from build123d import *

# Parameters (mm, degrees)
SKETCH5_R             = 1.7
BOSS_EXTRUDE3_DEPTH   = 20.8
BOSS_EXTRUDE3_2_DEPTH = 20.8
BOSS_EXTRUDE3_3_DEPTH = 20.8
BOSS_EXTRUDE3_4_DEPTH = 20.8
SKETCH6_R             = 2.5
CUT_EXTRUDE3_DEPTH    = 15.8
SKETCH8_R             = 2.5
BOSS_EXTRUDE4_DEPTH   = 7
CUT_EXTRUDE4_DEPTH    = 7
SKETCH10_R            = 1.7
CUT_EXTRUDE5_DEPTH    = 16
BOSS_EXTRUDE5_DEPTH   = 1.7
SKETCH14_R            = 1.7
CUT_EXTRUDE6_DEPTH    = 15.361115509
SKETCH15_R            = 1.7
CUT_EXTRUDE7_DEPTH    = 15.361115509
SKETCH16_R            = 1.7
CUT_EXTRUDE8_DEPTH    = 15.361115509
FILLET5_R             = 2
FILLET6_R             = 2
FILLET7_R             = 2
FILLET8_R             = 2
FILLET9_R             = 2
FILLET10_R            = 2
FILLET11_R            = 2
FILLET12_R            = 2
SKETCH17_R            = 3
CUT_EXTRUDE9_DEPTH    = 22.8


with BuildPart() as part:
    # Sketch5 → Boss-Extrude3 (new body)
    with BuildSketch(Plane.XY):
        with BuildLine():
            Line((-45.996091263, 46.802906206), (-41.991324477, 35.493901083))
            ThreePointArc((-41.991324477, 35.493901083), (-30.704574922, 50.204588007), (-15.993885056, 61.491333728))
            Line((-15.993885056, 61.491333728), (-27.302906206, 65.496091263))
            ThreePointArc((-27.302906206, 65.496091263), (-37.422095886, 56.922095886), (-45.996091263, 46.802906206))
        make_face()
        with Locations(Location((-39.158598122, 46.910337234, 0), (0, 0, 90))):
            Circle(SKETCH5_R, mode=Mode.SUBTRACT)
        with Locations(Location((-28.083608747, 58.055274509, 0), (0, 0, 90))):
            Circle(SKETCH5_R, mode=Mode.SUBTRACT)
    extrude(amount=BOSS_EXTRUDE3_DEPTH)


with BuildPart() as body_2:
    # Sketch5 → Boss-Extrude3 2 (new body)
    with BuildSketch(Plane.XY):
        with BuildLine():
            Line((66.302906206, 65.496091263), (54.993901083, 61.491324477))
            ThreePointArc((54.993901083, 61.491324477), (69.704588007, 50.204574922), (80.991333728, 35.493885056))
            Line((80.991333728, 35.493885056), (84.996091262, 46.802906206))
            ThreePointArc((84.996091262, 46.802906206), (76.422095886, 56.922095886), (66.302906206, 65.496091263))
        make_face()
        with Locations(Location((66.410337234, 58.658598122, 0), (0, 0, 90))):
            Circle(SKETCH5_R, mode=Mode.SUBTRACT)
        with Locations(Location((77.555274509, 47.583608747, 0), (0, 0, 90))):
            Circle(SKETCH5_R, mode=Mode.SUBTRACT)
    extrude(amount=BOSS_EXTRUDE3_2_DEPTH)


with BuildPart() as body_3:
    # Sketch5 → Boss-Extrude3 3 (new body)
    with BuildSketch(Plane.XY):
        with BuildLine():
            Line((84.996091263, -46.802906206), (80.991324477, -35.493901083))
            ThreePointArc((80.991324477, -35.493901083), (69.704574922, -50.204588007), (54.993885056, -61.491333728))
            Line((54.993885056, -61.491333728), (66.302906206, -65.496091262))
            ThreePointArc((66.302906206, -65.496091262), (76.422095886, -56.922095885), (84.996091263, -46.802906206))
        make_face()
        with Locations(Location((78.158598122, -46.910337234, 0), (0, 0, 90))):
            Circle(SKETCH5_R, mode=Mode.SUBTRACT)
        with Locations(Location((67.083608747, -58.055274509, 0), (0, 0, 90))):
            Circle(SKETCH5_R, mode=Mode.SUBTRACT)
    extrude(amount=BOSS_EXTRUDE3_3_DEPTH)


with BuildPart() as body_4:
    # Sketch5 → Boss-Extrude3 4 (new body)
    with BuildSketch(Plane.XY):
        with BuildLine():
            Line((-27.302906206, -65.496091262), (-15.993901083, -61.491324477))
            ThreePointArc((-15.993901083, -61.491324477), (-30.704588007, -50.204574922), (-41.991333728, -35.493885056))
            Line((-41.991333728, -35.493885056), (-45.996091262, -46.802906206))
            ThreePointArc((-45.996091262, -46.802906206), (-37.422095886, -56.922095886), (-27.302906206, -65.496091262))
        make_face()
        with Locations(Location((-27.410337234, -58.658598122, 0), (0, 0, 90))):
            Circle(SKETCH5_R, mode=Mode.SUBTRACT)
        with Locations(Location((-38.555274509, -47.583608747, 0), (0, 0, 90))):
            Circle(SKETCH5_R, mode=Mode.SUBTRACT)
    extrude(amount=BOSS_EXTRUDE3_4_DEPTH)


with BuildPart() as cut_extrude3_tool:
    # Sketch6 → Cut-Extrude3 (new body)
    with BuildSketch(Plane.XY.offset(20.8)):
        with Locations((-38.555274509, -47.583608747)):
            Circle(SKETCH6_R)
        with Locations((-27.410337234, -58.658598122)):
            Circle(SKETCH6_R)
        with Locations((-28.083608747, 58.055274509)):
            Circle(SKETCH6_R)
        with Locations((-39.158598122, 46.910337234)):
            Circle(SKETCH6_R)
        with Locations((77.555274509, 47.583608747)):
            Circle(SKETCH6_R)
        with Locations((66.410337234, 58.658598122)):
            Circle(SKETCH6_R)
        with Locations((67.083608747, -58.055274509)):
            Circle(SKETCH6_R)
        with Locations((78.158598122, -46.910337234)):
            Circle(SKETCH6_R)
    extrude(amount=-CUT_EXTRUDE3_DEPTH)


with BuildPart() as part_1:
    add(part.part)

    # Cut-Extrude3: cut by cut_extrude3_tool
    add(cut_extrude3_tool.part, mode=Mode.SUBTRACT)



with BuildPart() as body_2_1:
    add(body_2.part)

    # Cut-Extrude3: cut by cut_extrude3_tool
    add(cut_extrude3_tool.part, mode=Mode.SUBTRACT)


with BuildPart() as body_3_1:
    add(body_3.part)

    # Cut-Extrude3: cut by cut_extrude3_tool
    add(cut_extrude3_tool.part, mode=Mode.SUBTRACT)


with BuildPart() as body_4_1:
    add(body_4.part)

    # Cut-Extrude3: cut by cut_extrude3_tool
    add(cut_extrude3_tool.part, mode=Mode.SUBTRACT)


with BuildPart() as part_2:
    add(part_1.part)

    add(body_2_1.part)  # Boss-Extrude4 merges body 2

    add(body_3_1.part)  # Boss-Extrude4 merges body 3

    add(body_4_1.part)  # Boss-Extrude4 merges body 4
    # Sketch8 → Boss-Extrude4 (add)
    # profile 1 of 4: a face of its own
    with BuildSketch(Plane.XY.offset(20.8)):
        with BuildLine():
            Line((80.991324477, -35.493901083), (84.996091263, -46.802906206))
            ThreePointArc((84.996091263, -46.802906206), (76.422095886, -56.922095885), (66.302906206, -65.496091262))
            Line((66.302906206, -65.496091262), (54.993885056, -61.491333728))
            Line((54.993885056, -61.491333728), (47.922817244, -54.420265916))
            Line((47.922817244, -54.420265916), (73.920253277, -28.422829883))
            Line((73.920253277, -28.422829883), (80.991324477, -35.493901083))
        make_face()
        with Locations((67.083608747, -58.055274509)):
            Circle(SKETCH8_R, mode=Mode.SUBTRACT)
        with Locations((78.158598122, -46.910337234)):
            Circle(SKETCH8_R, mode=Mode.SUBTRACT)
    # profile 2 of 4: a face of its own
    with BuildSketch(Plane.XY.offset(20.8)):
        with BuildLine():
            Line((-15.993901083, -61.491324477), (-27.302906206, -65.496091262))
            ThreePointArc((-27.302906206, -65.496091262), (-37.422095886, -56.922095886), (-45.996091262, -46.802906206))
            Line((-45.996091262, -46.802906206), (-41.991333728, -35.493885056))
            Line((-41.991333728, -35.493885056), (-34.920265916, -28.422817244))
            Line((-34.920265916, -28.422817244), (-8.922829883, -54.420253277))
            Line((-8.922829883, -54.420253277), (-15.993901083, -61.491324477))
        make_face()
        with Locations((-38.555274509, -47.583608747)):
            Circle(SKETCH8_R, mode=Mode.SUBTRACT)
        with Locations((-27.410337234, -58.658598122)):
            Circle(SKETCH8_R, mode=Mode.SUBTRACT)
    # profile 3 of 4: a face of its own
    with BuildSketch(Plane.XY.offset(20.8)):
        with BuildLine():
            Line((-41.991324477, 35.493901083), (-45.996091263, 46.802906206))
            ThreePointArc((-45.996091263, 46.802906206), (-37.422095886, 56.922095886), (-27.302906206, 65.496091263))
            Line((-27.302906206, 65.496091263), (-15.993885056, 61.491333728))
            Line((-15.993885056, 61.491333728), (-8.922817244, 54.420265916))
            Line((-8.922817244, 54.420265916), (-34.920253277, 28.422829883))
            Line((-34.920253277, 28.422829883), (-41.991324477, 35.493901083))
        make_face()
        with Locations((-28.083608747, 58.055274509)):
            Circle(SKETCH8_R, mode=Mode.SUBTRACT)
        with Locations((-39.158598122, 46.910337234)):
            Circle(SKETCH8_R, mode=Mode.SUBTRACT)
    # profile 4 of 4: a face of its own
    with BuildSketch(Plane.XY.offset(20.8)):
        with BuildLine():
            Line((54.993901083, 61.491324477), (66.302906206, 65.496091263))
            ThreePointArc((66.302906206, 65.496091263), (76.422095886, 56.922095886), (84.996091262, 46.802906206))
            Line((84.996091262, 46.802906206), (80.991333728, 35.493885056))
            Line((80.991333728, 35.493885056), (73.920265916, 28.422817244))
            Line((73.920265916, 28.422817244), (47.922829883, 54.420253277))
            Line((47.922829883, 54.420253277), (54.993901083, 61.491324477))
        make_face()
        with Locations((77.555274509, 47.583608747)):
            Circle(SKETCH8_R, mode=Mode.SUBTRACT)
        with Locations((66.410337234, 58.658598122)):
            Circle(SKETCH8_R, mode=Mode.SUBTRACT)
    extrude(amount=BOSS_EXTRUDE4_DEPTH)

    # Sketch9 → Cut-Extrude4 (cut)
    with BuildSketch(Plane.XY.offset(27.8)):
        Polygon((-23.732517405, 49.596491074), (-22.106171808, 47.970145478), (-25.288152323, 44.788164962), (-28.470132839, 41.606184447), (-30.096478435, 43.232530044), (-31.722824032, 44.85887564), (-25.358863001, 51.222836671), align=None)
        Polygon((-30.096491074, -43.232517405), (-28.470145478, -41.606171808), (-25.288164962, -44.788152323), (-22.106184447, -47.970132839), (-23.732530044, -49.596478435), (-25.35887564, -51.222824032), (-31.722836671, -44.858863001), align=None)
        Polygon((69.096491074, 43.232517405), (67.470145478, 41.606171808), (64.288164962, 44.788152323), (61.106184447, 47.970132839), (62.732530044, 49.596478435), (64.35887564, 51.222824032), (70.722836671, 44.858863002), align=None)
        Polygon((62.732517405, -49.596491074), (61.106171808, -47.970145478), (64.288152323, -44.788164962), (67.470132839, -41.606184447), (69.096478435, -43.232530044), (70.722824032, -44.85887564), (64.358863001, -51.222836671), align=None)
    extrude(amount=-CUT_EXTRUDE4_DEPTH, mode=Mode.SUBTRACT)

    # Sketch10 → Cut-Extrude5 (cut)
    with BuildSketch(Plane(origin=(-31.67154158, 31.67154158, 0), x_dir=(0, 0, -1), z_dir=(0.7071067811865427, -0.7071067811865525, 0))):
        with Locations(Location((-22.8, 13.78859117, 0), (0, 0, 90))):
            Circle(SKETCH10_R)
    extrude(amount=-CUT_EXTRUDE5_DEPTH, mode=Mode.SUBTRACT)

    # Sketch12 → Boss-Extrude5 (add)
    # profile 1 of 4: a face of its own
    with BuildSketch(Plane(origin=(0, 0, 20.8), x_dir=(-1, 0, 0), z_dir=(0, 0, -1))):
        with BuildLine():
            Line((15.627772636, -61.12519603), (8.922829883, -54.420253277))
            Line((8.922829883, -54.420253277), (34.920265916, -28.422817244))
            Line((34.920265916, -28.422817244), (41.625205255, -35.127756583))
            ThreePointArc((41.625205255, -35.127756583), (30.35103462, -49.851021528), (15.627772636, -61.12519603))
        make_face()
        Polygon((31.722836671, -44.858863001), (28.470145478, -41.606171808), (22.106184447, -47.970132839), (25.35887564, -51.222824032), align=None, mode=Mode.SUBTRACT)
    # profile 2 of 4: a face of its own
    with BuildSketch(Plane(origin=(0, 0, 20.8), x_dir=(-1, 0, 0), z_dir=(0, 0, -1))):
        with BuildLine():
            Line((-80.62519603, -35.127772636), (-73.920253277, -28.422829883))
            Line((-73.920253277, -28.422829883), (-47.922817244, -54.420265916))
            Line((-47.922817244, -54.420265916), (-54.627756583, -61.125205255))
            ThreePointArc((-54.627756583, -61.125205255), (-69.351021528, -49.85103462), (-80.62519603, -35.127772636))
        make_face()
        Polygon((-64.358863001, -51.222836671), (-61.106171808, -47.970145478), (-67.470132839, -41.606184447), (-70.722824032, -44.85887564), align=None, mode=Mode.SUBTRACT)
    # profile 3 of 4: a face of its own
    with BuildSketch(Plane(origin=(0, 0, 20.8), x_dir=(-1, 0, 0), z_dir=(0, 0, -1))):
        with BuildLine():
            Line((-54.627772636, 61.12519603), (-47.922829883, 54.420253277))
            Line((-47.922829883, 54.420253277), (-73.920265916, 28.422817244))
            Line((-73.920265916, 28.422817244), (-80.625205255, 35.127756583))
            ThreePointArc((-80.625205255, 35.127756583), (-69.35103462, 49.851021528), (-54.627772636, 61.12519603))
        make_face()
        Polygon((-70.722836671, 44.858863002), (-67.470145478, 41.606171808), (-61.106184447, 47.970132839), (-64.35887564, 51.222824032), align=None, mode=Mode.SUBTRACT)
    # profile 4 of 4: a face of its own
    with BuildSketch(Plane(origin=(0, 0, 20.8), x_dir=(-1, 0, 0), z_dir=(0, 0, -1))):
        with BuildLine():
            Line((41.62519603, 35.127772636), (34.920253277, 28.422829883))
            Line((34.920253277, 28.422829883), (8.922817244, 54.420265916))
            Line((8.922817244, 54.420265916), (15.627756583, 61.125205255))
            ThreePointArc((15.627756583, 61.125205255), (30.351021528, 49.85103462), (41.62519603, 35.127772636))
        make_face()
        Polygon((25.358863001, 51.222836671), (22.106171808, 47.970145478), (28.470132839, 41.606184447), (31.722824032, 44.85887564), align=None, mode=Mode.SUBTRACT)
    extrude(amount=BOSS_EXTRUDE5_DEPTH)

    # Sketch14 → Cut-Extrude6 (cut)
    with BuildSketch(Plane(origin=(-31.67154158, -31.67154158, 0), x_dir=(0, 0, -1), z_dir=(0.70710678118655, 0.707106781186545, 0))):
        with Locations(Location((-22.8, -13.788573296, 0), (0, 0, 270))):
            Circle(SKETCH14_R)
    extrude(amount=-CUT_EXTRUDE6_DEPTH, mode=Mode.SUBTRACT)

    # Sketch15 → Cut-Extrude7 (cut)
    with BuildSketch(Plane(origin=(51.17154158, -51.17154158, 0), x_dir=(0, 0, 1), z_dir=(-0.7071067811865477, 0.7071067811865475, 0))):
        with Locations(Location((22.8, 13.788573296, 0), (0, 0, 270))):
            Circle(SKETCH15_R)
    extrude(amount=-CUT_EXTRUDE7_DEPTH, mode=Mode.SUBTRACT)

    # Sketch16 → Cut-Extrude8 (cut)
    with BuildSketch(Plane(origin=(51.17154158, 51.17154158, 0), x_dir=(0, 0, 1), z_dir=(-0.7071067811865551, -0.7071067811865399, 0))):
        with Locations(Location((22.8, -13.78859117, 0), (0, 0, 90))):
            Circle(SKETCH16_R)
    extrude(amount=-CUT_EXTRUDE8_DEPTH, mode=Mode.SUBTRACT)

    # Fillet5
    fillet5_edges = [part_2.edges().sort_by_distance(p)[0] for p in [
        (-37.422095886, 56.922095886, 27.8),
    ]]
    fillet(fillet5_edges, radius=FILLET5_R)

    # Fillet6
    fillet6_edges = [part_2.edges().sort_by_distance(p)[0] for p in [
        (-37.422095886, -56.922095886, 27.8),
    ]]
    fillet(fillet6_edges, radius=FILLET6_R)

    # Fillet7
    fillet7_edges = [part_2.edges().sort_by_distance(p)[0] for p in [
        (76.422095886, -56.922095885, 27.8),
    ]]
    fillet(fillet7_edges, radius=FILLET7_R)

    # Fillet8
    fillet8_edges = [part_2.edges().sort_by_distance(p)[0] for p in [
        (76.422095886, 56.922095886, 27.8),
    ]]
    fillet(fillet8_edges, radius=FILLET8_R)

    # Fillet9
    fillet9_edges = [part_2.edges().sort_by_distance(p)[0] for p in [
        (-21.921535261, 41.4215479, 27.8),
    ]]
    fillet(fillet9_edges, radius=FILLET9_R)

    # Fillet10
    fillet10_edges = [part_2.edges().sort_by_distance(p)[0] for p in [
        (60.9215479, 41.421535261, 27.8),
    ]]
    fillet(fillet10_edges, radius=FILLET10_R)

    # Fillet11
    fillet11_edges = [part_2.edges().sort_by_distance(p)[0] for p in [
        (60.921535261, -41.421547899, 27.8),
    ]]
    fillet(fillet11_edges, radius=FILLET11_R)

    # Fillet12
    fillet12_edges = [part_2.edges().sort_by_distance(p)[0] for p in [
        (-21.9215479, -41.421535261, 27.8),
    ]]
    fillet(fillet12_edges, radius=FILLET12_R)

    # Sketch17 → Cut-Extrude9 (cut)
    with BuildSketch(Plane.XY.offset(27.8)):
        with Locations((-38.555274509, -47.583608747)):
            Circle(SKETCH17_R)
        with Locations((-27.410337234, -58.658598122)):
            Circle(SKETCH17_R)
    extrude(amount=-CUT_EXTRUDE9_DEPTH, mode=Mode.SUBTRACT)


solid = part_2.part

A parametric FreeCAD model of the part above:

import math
import FreeCAD as App
import Part
import Sketcher
Q = App.Units.Quantity


def edges_at(feature, points):
    """Names of the edges that pass closest to the given points."""
    edges = feature.Shape.Edges
    near = lambda p: min(range(len(edges)), key=lambda i: edges[i].distToShape(Part.Vertex(*p))[0])
    return sorted({f"Edge{near(p) + 1}" for p in points})


def add_polygon(sketch, points):
    """Adds a closed chain of lines whose ends are joined by coincident constraints."""
    first, n = sketch.GeometryCount, len(points)
    for a, b in zip(points, points[1:] + points[:1]):
        sketch.addGeometry(Part.LineSegment(App.Vector(*a, 0), App.Vector(*b, 0)), False)
    for i in range(n):
        sketch.addConstraint(Sketcher.Constraint("Coincident", first + i, 2, first + (i + 1) % n, 1))

doc = App.newDocument("Part")
body = doc.addObject("PartDesign::Body", "Body")

# Sketch on XY plane
sketch1 = body.newObject("Sketcher::SketchObject", "Sketch")
sketch1.AttachmentSupport = (doc.getObject("XY_Plane"), [""])
sketch1.MapMode = "FlatFace"
sketch1.addGeometry([
    Part.LineSegment(App.Vector(-45.996091, 46.802906, 0), App.Vector(-41.991324, 35.493901, 0)),  # 0
    Part.ArcOfCircle(Part.Circle(App.Vector(19.5, 0, 0), App.Vector(0, 0, 1), 71), math.radians(119.994302), math.radians(150.005683)),  # 1
    Part.LineSegment(App.Vector(-15.993885, 61.491334, 0), App.Vector(-27.302906, 65.496091, 0)),  # 2
    Part.ArcOfCircle(Part.Circle(App.Vector(19.5, 0, 0), App.Vector(0, 0, 1), 80.5), math.radians(125.549252), math.radians(144.450748)),  # 3
    Part.Circle(App.Vector(-39.158598, 46.910337, 0), App.Vector(0, 0, 1), 1.7),  # 4
    Part.Circle(App.Vector(-28.083609, 58.055275, 0), App.Vector(0, 0, 1), 1.7),  # 5
], False)
sketch1.addConstraint([
    Sketcher.Constraint("Coincident", 0, 2, 1, 2),
    Sketcher.Constraint("Coincident", 1, 1, 2, 1),
    Sketcher.Constraint("Coincident", 2, 2, 3, 1),
    Sketcher.Constraint("Coincident", 3, 2, 0, 1),
    Sketcher.Constraint("Coincident", 3, 3, 1, 3),
    Sketcher.Constraint("Equal", 4, 5),
    Sketcher.Constraint("PointOnObject", 1, 3, -1),
    Sketcher.Constraint("Radius", 1, Q("71 mm")),
    Sketcher.Constraint("Diameter", 4, Q("3.4 mm")),
    Sketcher.Constraint("Radius", 3, Q("80.5 mm")),
    Sketcher.Constraint("DistanceX", -1, 1, 1, 3, Q("19.5 mm")),
    Sketcher.Constraint("DistanceX", 4, 3, -1, 1, Q("39.158598 mm")),
    Sketcher.Constraint("DistanceY", -1, 1, 0, 2, Q("35.493901 mm")),
    Sketcher.Constraint("Distance", 2, Q("11.997168 mm")),
    Sketcher.Constraint("DistanceX", 5, 3, -1, 1, Q("28.083609 mm")),
    Sketcher.Constraint("DistanceY", -1, 1, 2, 2, Q("65.496091 mm")),
    Sketcher.Constraint("DistanceX", 3, 2, -1, 1, Q("45.996091 mm")),
    Sketcher.Constraint("DistanceY", 5, 3, 1, 1, Q("3.436059 mm")),
    Sketcher.Constraint("DistanceY", 3, 2, 4, 3, Q("0.107431 mm")),
])
pad1 = body.newObject("PartDesign::Pad", "Pad")
pad1.Profile = sketch1
pad1.Length = 20.8
body2 = doc.addObject("PartDesign::Body", "Body001")

# Sketch on XY plane
sketch2 = body2.newObject("Sketcher::SketchObject", "Sketch001")
sketch2.AttachmentSupport = (doc.getObject("XY_Plane001"), [""])
sketch2.MapMode = "FlatFace"
sketch2.addGeometry([
    Part.LineSegment(App.Vector(66.302906, 65.496091, 0), App.Vector(54.993901, 61.491324, 0)),  # 0
    Part.ArcOfCircle(Part.Circle(App.Vector(19.5, 0, 0), App.Vector(0, 0, 1), 71), math.radians(29.994302), math.radians(60.005683)),  # 1
    Part.LineSegment(App.Vector(80.991334, 35.493885, 0), App.Vector(84.996091, 46.802906, 0)),  # 2
    Part.ArcOfCircle(Part.Circle(App.Vector(19.5, 0, 0), App.Vector(0, 0, 1), 80.5), math.radians(35.549252), math.radians(54.450748)),  # 3
    Part.Circle(App.Vector(77.555275, 47.583609, 0), App.Vector(0, 0, 1), 1.7),  # 4
    Part.Circle(App.Vector(66.410337, 58.658598, 0), App.Vector(0, 0, 1), 1.7),  # 5
], False)
sketch2.addConstraint([
    Sketcher.Constraint("Coincident", 0, 2, 1, 2),
    Sketcher.Constraint("Coincident", 1, 1, 2, 1),
    Sketcher.Constraint("Coincident", 2, 2, 3, 1),
    Sketcher.Constraint("Coincident", 3, 2, 0, 1),
    Sketcher.Constraint("Coincident", 3, 3, 1, 3),
    Sketcher.Constraint("Equal", 4, 5),
    Sketcher.Constraint("PointOnObject", 1, 3, -1),
    Sketcher.Constraint("Radius", 1, Q("71 mm")),
    Sketcher.Constraint("Diameter", 4, Q("3.4 mm")),
    Sketcher.Constraint("Radius", 3, Q("80.5 mm")),
    Sketcher.Constraint("DistanceX", -1, 1, 1, 3, Q("19.5 mm")),
    Sketcher.Constraint("DistanceY", -1, 1, 5, 3, Q("58.658598 mm")),
    Sketcher.Constraint("DistanceX", -1, 1, 0, 2, Q("54.993901 mm")),
    Sketcher.Constraint("Distance", 2, Q("11.997168 mm")),
    Sketcher.Constraint("DistanceY", -1, 1, 4, 3, Q("47.583609 mm")),
    Sketcher.Constraint("DistanceX", -1, 1, 2, 2, Q("84.996091 mm")),
    Sketcher.Constraint("DistanceY", -1, 1, 3, 2, Q("65.496091 mm")),
    Sketcher.Constraint("DistanceX", 4, 3, 1, 1, Q("3.436059 mm")),
    Sketcher.Constraint("DistanceX", 3, 2, 5, 3, Q("0.107431 mm")),
])
pad2 = body2.newObject("PartDesign::Pad", "Pad001")
pad2.Profile = sketch2
pad2.Length = 20.8
body3 = doc.addObject("PartDesign::Body", "Body002")

# Sketch on XY plane
sketch3 = body3.newObject("Sketcher::SketchObject", "Sketch002")
sketch3.AttachmentSupport = (doc.getObject("XY_Plane002"), [""])
sketch3.MapMode = "FlatFace"
sketch3.addGeometry([
    Part.LineSegment(App.Vector(84.996091, -46.802906, 0), App.Vector(80.991324, -35.493901, 0)),  # 0
    Part.ArcOfCircle(Part.Circle(App.Vector(19.5, 0, 0), App.Vector(0, 0, 1), 71), math.radians(-60.005698), math.radians(-29.994317)),  # 1
    Part.LineSegment(App.Vector(54.993885, -61.491334, 0), App.Vector(66.302906, -65.496091, 0)),  # 2
    Part.ArcOfCircle(Part.Circle(App.Vector(19.5, 0, 0), App.Vector(0, 0, 1), 80.5), math.radians(-54.450748), math.radians(-35.549252)),  # 3
    Part.Circle(App.Vector(67.083609, -58.055275, 0), App.Vector(0, 0, 1), 1.7),  # 4
    Part.Circle(App.Vector(78.158598, -46.910337, 0), App.Vector(0, 0, 1), 1.7),  # 5
], False)
sketch3.addConstraint([
    Sketcher.Constraint("Coincident", 0, 2, 1, 2),
    Sketcher.Constraint("Coincident", 1, 1, 2, 1),
    Sketcher.Constraint("Coincident", 2, 2, 3, 1),
    Sketcher.Constraint("Coincident", 3, 2, 0, 1),
    Sketcher.Constraint("Coincident", 3, 3, 1, 3),
    Sketcher.Constraint("Equal", 4, 5),
    Sketcher.Constraint("PointOnObject", 1, 3, -1),
    Sketcher.Constraint("Radius", 1, Q("71 mm")),
    Sketcher.Constraint("Diameter", 4, Q("3.4 mm")),
    Sketcher.Constraint("Radius", 3, Q("80.5 mm")),
    Sketcher.Constraint("DistanceX", -1, 1, 1, 3, Q("19.5 mm")),
    Sketcher.Constraint("DistanceX", -1, 1, 5, 3, Q("78.158598 mm")),
    Sketcher.Constraint("DistanceY", 0, 2, -1, 1, Q("35.493901 mm")),
    Sketcher.Constraint("Distance", 2, Q("11.997168 mm")),
    Sketcher.Constraint("DistanceX", -1, 1, 4, 3, Q("67.083609 mm")),
    Sketcher.Constraint("DistanceY", 2, 2, -1, 1, Q("65.496091 mm")),
    Sketcher.Constraint("DistanceX", -1, 1, 3, 2, Q("84.996091 mm")),
    Sketcher.Constraint("DistanceY", 1, 1, 4, 3, Q("3.436059 mm")),
    Sketcher.Constraint("DistanceY", 5, 3, 3, 2, Q("0.107431 mm")),
])
pad3 = body3.newObject("PartDesign::Pad", "Pad002")
pad3.Profile = sketch3
pad3.Length = 20.8
body4 = doc.addObject("PartDesign::Body", "Body003")

# Sketch on XY plane
sketch4 = body4.newObject("Sketcher::SketchObject", "Sketch003")
sketch4.AttachmentSupport = (doc.getObject("XY_Plane003"), [""])
sketch4.MapMode = "FlatFace"
sketch4.addGeometry([
    Part.LineSegment(App.Vector(-27.302906, -65.496091, 0), App.Vector(-15.993901, -61.491324, 0)),  # 0
    Part.ArcOfCircle(Part.Circle(App.Vector(19.5, 0, 0), App.Vector(0, 0, 1), 71), math.radians(-150.005698), math.radians(-119.994317)),  # 1
    Part.LineSegment(App.Vector(-41.991334, -35.493885, 0), App.Vector(-45.996091, -46.802906, 0)),  # 2
    Part.ArcOfCircle(Part.Circle(App.Vector(19.5, 0, 0), App.Vector(0, 0, 1), 80.5), math.radians(-144.450748), math.radians(-125.549252)),  # 3
    Part.Circle(App.Vector(-27.410337, -58.658598, 0), App.Vector(0, 0, 1), 1.7),  # 4
    Part.Circle(App.Vector(-38.555275, -47.583609, 0), App.Vector(0, 0, 1), 1.7),  # 5
], False)
sketch4.addConstraint([
    Sketcher.Constraint("Coincident", 0, 2, 1, 2),
    Sketcher.Constraint("Coincident", 1, 1, 2, 1),
    Sketcher.Constraint("Coincident", 2, 2, 3, 1),
    Sketcher.Constraint("Coincident", 3, 2, 0, 1),
    Sketcher.Constraint("Coincident", 3, 3, 1, 3),
    Sketcher.Constraint("Equal", 4, 5),
    Sketcher.Constraint("PointOnObject", 1, 3, -1),
    Sketcher.Constraint("Radius", 1, Q("71 mm")),
    Sketcher.Constraint("Diameter", 4, Q("3.4 mm")),
    Sketcher.Constraint("Radius", 3, Q("80.5 mm")),
    Sketcher.Constraint("DistanceX", -1, 1, 1, 3, Q("19.5 mm")),
    Sketcher.Constraint("DistanceY", 4, 3, -1, 1, Q("58.658598 mm")),
    Sketcher.Constraint("DistanceX", 0, 2, -1, 1, Q("15.993901 mm")),
    Sketcher.Constraint("Distance", 2, Q("11.997168 mm")),
    Sketcher.Constraint("DistanceY", 5, 3, -1, 1, Q("47.583609 mm")),
    Sketcher.Constraint("DistanceX", 2, 2, -1, 1, Q("45.996091 mm")),
    Sketcher.Constraint("DistanceY", 3, 2, -1, 1, Q("65.496091 mm")),
    Sketcher.Constraint("DistanceX", 1, 1, 5, 3, Q("3.436059 mm")),
    Sketcher.Constraint("DistanceX", 4, 3, 3, 2, Q("0.107431 mm")),
])
pad4 = body4.newObject("PartDesign::Pad", "Pad003")
pad4.Profile = sketch4
pad4.Length = 20.8
body5 = doc.addObject("PartDesign::Body", "Body004")
body5.AllowCompound = True

# Sketch on XY plane
sketch5 = body5.newObject("Sketcher::SketchObject", "Sketch004")
sketch5.AttachmentSupport = (doc.getObject("XY_Plane004"), [""])
sketch5.MapMode = "FlatFace"
sketch5.AttachmentOffset = App.Placement(App.Vector(0, 0, 20.8), App.Rotation())
sketch5.addGeometry([
    Part.Circle(App.Vector(-38.555275, -47.583609, 0), App.Vector(0, 0, 1), 2.5),  # 0
    Part.Circle(App.Vector(-27.410337, -58.658598, 0), App.Vector(0, 0, 1), 2.5),  # 1
    Part.Circle(App.Vector(-28.083609, 58.055275, 0), App.Vector(0, 0, 1), 2.5),  # 2
    Part.Circle(App.Vector(-39.158598, 46.910337, 0), App.Vector(0, 0, 1), 2.5),  # 3
    Part.Circle(App.Vector(77.555275, 47.583609, 0), App.Vector(0, 0, 1), 2.5),  # 4
    Part.Circle(App.Vector(66.410337, 58.658598, 0), App.Vector(0, 0, 1), 2.5),  # 5
    Part.Circle(App.Vector(67.083609, -58.055275, 0), App.Vector(0, 0, 1), 2.5),  # 6
    Part.Circle(App.Vector(78.158598, -46.910337, 0), App.Vector(0, 0, 1), 2.5),  # 7
], False)
sketch5.addConstraint([
    Sketcher.Constraint("Equal", 0, 1),
    Sketcher.Constraint("Equal", 1, 2),
    Sketcher.Constraint("Equal", 2, 3),
    Sketcher.Constraint("Equal", 3, 4),
    Sketcher.Constraint("Equal", 4, 5),
    Sketcher.Constraint("Equal", 5, 6),
    Sketcher.Constraint("Equal", 6, 7),
    Sketcher.Constraint("Diameter", 0, Q("5 mm")),
    Sketcher.Constraint("DistanceY", 1, 3, -1, 1, Q("58.658598 mm")),
    Sketcher.Constraint("DistanceX", 3, 3, -1, 1, Q("39.158598 mm")),
    Sketcher.Constraint("DistanceY", -1, 1, 5, 3, Q("58.658598 mm")),
    Sketcher.Constraint("DistanceX", -1, 1, 7, 3, Q("78.158598 mm")),
    Sketcher.Constraint("DistanceY", 0, 3, -1, 1, Q("47.583609 mm")),
    Sketcher.Constraint("DistanceX", 2, 3, -1, 1, Q("28.083609 mm")),
    Sketcher.Constraint("DistanceY", -1, 1, 4, 3, Q("47.583609 mm")),
    Sketcher.Constraint("DistanceX", -1, 1, 6, 3, Q("67.083609 mm")),
    Sketcher.Constraint("DistanceX", 2, 3, 1, 3, Q("0.673272 mm")),
    Sketcher.Constraint("DistanceY", 3, 3, 4, 3, Q("0.673272 mm")),
    Sketcher.Constraint("DistanceX", 1, 3, 4, 3, Q("104.965612 mm")),
    Sketcher.Constraint("DistanceX", 0, 3, 4, 3, Q("116.110549 mm")),
    Sketcher.Constraint("DistanceX", 0, 3, 5, 3, Q("104.965612 mm")),
    Sketcher.Constraint("DistanceY", 6, 3, 3, 3, Q("104.965612 mm")),
    Sketcher.Constraint("DistanceY", 1, 3, 7, 3, Q("11.748261 mm")),
    Sketcher.Constraint("DistanceY", -1, 1, 2, 3, Q("58.055275 mm")),
])
pad5 = body5.newObject("PartDesign::Pad", "Pad004")
pad5.Profile = sketch5
pad5.Length = 15.8
pad5.Reversed = True
doc.recompute()

body6 = doc.addObject("PartDesign::Body", "Body005")
body6.BaseFeature = body5
boolean = body.newObject("PartDesign::Boolean", "Boolean")
boolean.Type = "Cut"
boolean.addObjects([body6])
doc.recompute()

body7 = doc.addObject("PartDesign::Body", "Body006")
body7.BaseFeature = body5
boolean2 = body2.newObject("PartDesign::Boolean", "Boolean001")
boolean2.Type = "Cut"
boolean2.addObjects([body7])
doc.recompute()

body8 = doc.addObject("PartDesign::Body", "Body007")
body8.BaseFeature = body5
boolean3 = body3.newObject("PartDesign::Boolean", "Boolean002")
boolean3.Type = "Cut"
boolean3.addObjects([body8])
doc.recompute()

boolean4 = body4.newObject("PartDesign::Boolean", "Boolean003")
boolean4.Type = "Cut"
boolean4.addObjects([body5])
body.AllowCompound = True
doc.recompute()

boolean5 = body.newObject("PartDesign::Boolean", "Boolean004")
boolean5.Type = "Fuse"
boolean5.addObjects([body2])
doc.recompute()

boolean6 = body.newObject("PartDesign::Boolean", "Boolean005")
boolean6.Type = "Fuse"
boolean6.addObjects([body3])
doc.recompute()

boolean7 = body.newObject("PartDesign::Boolean", "Boolean006")
boolean7.Type = "Fuse"
boolean7.addObjects([body4])

# Sketch on XY plane
sketch6 = body.newObject("Sketcher::SketchObject", "Sketch005")
sketch6.AttachmentSupport = (doc.getObject("XY_Plane"), [""])
sketch6.MapMode = "FlatFace"
sketch6.AttachmentOffset = App.Placement(App.Vector(0, 0, 20.8), App.Rotation())
sketch6.addGeometry([
    Part.LineSegment(App.Vector(84.996091, -46.802906, 0), App.Vector(80.991324, -35.493901, 0)),  # 0
    Part.LineSegment(App.Vector(80.991324, -35.493901, 0), App.Vector(73.920253, -28.42283, 0)),  # 1
    Part.LineSegment(App.Vector(73.920253, -28.42283, 0), App.Vector(47.922817, -54.420266, 0)),  # 2
    Part.LineSegment(App.Vector(47.922817, -54.420266, 0), App.Vector(54.993885, -61.491334, 0)),  # 3
    Part.LineSegment(App.Vector(54.993885, -61.491334, 0), App.Vector(66.302906, -65.496091, 0)),  # 4
    Part.ArcOfCircle(Part.Circle(App.Vector(19.5, 0, 0), App.Vector(0, 0, 1), 80.5), math.radians(-54.450748), math.radians(-35.549252)),  # 5
    Part.Circle(App.Vector(67.083609, -58.055275, 0), App.Vector(0, 0, 1), 2.5),  # 6
    Part.Circle(App.Vector(78.158598, -46.910337, 0), App.Vector(0, 0, 1), 2.5),  # 7
    Part.LineSegment(App.Vector(-27.302906, -65.496091, 0), App.Vector(-15.993901, -61.491324, 0)),  # 8
    Part.LineSegment(App.Vector(-15.993901, -61.491324, 0), App.Vector(-8.92283, -54.420253, 0)),  # 9
    Part.LineSegment(App.Vector(-8.92283, -54.420253, 0), App.Vector(-34.920266, -28.422817, 0)),  # 10
    Part.LineSegment(App.Vector(-34.920266, -28.422817, 0), App.Vector(-41.991334, -35.493885, 0)),  # 11
    Part.LineSegment(App.Vector(-41.991334, -35.493885, 0), App.Vector(-45.996091, -46.802906, 0)),  # 12
    Part.ArcOfCircle(Part.Circle(App.Vector(19.5, 0, 0), App.Vector(0, 0, 1), 80.5), math.radians(-144.450748), math.radians(-125.549252)),  # 13
    Part.Circle(App.Vector(-27.410337, -58.658598, 0), App.Vector(0, 0, 1), 2.5),  # 14
    Part.Circle(App.Vector(-38.555275, -47.583609, 0), App.Vector(0, 0, 1), 2.5),  # 15
    Part.LineSegment(App.Vector(-45.996091, 46.802906, 0), App.Vector(-41.991324, 35.493901, 0)),  # 16
    Part.LineSegment(App.Vector(-41.991324, 35.493901, 0), App.Vector(-34.920253, 28.42283, 0)),  # 17
    Part.LineSegment(App.Vector(-34.920253, 28.42283, 0), App.Vector(-8.922817, 54.420266, 0)),  # 18
    Part.LineSegment(App.Vector(-8.922817, 54.420266, 0), App.Vector(-15.993885, 61.491334, 0)),  # 19
    Part.LineSegment(App.Vector(-15.993885, 61.491334, 0), App.Vector(-27.302906, 65.496091, 0)),  # 20
    Part.ArcOfCircle(Part.Circle(App.Vector(19.5, 0, 0), App.Vector(0, 0, 1), 80.5), math.radians(125.549252), math.radians(144.450748)),  # 21
    Part.Circle(App.Vector(-39.158598, 46.910337, 0), App.Vector(0, 0, 1), 2.5),  # 22
    Part.Circle(App.Vector(-28.083609, 58.055275, 0), App.Vector(0, 0, 1), 2.5),  # 23
    Part.LineSegment(App.Vector(66.302906, 65.496091, 0), App.Vector(54.993901, 61.491324, 0)),  # 24
    Part.LineSegment(App.Vector(54.993901, 61.491324, 0), App.Vector(47.92283, 54.420253, 0)),  # 25
    Part.LineSegment(App.Vector(47.92283, 54.420253, 0), App.Vector(73.920266, 28.422817, 0)),  # 26
    Part.LineSegment(App.Vector(73.920266, 28.422817, 0), App.Vector(80.991334, 35.493885, 0)),  # 27
    Part.LineSegment(App.Vector(80.991334, 35.493885, 0), App.Vector(84.996091, 46.802906, 0)),  # 28
    Part.ArcOfCircle(Part.Circle(App.Vector(19.5, 0, 0), App.Vector(0, 0, 1), 80.5), math.radians(35.549252), math.radians(54.450748)),  # 29
    Part.Circle(App.Vector(77.555275, 47.583609, 0), App.Vector(0, 0, 1), 2.5),  # 30
    Part.Circle(App.Vector(66.410337, 58.658598, 0), App.Vector(0, 0, 1), 2.5),  # 31
], False)
sketch6.addConstraint([
    Sketcher.Constraint("Coincident", 0, 2, 1, 1),
    Sketcher.Constraint("Coincident", 1, 2, 2, 1),
    Sketcher.Constraint("Coincident", 2, 2, 3, 1),
    Sketcher.Constraint("Coincident", 3, 2, 4, 1),
    Sketcher.Constraint("Coincident", 4, 2, 5, 1),
    Sketcher.Constraint("Coincident", 5, 2, 0, 1),
    Sketcher.Constraint("Coincident", 8, 2, 9, 1),
    Sketcher.Constraint("Coincident", 9, 2, 10, 1),
    Sketcher.Constraint("Coincident", 10, 2, 11, 1),
    Sketcher.Constraint("Coincident", 11, 2, 12, 1),
    Sketcher.Constraint("Coincident", 12, 2, 13, 1),
    Sketcher.Constraint("Coincident", 13, 2, 8, 1),
    Sketcher.Constraint("Coincident", 16, 2, 17, 1),
    Sketcher.Constraint("Coincident", 17, 2, 18, 1),
    Sketcher.Constraint("Coincident", 18, 2, 19, 1),
    Sketcher.Constraint("Coincident", 19, 2, 20, 1),
    Sketcher.Constraint("Coincident", 20, 2, 21, 1),
    Sketcher.Constraint("Coincident", 21, 2, 16, 1),
    Sketcher.Constraint("Coincident", 24, 2, 25, 1),
    Sketcher.Constraint("Coincident", 25, 2, 26, 1),
    Sketcher.Constraint("Coincident", 26, 2, 27, 1),
    Sketcher.Constraint("Coincident", 27, 2, 28, 1),
    Sketcher.Constraint("Coincident", 28, 2, 29, 1),
    Sketcher.Constraint("Coincident", 29, 2, 24, 1),
    Sketcher.Constraint("Coincident", 13, 3, 5, 3),
    Sketcher.Constraint("Coincident", 21, 3, 5, 3),
    Sketcher.Constraint("Coincident", 29, 3, 5, 3),
    Sketcher.Constraint("Equal", 6, 7),
    Sketcher.Constraint("Equal", 5, 13),
    Sketcher.Constraint("Equal", 7, 14),
    Sketcher.Constraint("Equal", 14, 15),
    Sketcher.Constraint("Equal", 13, 21),
    Sketcher.Constraint("Equal", 15, 22),
    Sketcher.Constraint("Equal", 22, 23),
    Sketcher.Constraint("Equal", 21, 29),
    Sketcher.Constraint("Equal", 23, 30),
    Sketcher.Constraint("Equal", 30, 31),
    Sketcher.Constraint("Symmetric", 13, 2, 20, 2, -1),
    Sketcher.Constraint("Perpendicular", 1, 2),
    Sketcher.Constraint("Perpendicular", 2, 3),
    Sketcher.Constraint("Perpendicular", 0, 8),
    Sketcher.Constraint("Perpendicular", 3, 9),
    Sketcher.Constraint("Perpendicular", 9, 10),
    Sketcher.Constraint("Perpendicular", 10, 11),
    Sketcher.Constraint("Perpendicular", 4, 12),
    Sketcher.Constraint("Perpendicular", 8, 16),
    Sketcher.Constraint("Perpendicular", 11, 17),
    Sketcher.Constraint("Perpendicular", 17, 18),
    Sketcher.Constraint("Perpendicular", 18, 19),
    Sketcher.Constraint("Perpendicular", 12, 20),
    Sketcher.Constraint("Perpendicular", 16, 24),
    Sketcher.Constraint("Perpendicular", 19, 25),
    Sketcher.Constraint("Perpendicular", 25, 26),
    Sketcher.Constraint("Perpendicular", 26, 27),
    Sketcher.Constraint("Perpendicular", 20, 28),
    Sketcher.Constraint("Horizontal", 5, 2, 12, 2),
    Sketcher.Constraint("Horizontal", 4, 2, 13, 2),
    Sketcher.Constraint("Horizontal", 21, 2, 28, 2),
    Sketcher.Constraint("Horizontal", 20, 2, 29, 2),
    Sketcher.Constraint("Vertical", 12, 2, 21, 2),
    Sketcher.Constraint("Equal", 0, 8),
    Sketcher.Constraint("Equal", 1, 9),
    Sketcher.Constraint("Equal", 2, 10),
    Sketcher.Constraint("Equal", 3, 11),
    Sketcher.Constraint("Equal", 8, 16),
    Sketcher.Constraint("Equal", 9, 17),
    Sketcher.Constraint("Equal", 10, 18),
    Sketcher.Constraint("Equal", 16, 24),
    Sketcher.Constraint("Equal", 17, 25),
    Sketcher.Constraint("Equal", 18, 26),
    Sketcher.Constraint("Diameter", 6, Q("5 mm")),
    Sketcher.Constraint("Radius", 5, Q("80.5 mm")),
    Sketcher.Constraint("Angle", 1, Q("135 deg")),
    Sketcher.Constraint("Distance", 3, Q("10 mm")),
    Sketcher.Constraint("DistanceX", -1, 1, 5, 3, Q("19.5 mm")),
    Sketcher.Constraint("DistanceX", -1, 1, 7, 3, Q("78.158598 mm")),
    Sketcher.Constraint("DistanceY", 14, 3, -1, 1, Q("58.658598 mm")),
    Sketcher.Constraint("DistanceX", 22, 3, -1, 1, Q("39.158598 mm")),
    Sketcher.Constraint("DistanceY", -1, 1, 31, 3, Q("58.658598 mm")),
    Sketcher.Constraint("DistanceY", 0, 2, -1, 1, Q("35.493901 mm")),
    Sketcher.Constraint("Distance", 4, Q("11.997168 mm")),
    Sketcher.Constraint("DistanceX", -1, 1, 6, 3, Q("67.083609 mm")),
    Sketcher.Constraint("DistanceY", 15, 3, -1, 1, Q("47.583609 mm")),
    Sketcher.Constraint("DistanceX", 23, 3, -1, 1, Q("28.083609 mm")),
    Sketcher.Constraint("DistanceY", -1, 1, 30, 3, Q("47.583609 mm")),
    Sketcher.Constraint("DistanceY", 1, 2, -1, 1, Q("28.42283 mm")),
    Sketcher.Constraint("DistanceY", 4, 2, -1, 1, Q("65.496091 mm")),
    Sketcher.Constraint("DistanceY", 14, 3, 7, 3, Q("11.748261 mm")),
    Sketcher.Constraint("DistanceX", 22, 3, 14, 3, Q("11.748261 mm")),
    Sketcher.Constraint("DistanceX", 2, 2, 6, 3, Q("19.160792 mm")),
    Sketcher.Constraint("DistanceY", 6, 3, 2, 2, Q("3.635009 mm")),
    Sketcher.Constraint("DistanceX", 15, 3, 10, 2, Q("3.635009 mm")),
    Sketcher.Constraint("DistanceY", 18, 2, 23, 3, Q("3.635009 mm")),
    Sketcher.Constraint("DistanceY", 22, 3, 18, 2, Q("7.509929 mm")),
    Sketcher.Constraint("DistanceX", 26, 2, 30, 3, Q("3.635009 mm")),
    Sketcher.Constraint("DistanceX", 31, 3, 26, 2, Q("7.509929 mm")),
])
pad6 = body.newObject("PartDesign::Pad", "Pad005")
pad6.Profile = sketch6
pad6.Length = 7

# Sketch on XY plane
sketch7 = body.newObject("Sketcher::SketchObject", "Sketch006")
sketch7.AttachmentSupport = (doc.getObject("XY_Plane"), [""])
sketch7.MapMode = "FlatFace"
sketch7.AttachmentOffset = App.Placement(App.Vector(0, 0, 27.8), App.Rotation())
add_polygon(sketch7, [(-22.106172, 47.970145), (-23.732517, 49.596491), (-25.358863, 51.222837), (-31.722824, 44.858876), (-30.096478, 43.23253), (-28.470133, 41.606184), (-25.288152, 44.788165)])  # lines 0-6
add_polygon(sketch7, [(-28.470145, -41.606172), (-30.096491, -43.232517), (-31.722837, -44.858863), (-25.358876, -51.222824), (-23.73253, -49.596478), (-22.106184, -47.970133), (-25.288165, -44.788152)])  # lines 7-13
add_polygon(sketch7, [(67.470145, 41.606172), (69.096491, 43.232517), (70.722837, 44.858863), (64.358876, 51.222824), (62.73253, 49.596478), (61.106184, 47.970133), (64.288165, 44.788152)])  # lines 14-20
add_polygon(sketch7, [(61.106172, -47.970145), (62.732517, -49.596491), (64.358863, -51.222837), (70.722824, -44.858876), (69.096478, -43.23253), (67.470133, -41.606184), (64.288152, -44.788165)])  # lines 21-27
sketch7.addConstraint([
    Sketcher.Constraint("Parallel", 0, 1),
    Sketcher.Constraint("Perpendicular", 1, 2),
    Sketcher.Constraint("Perpendicular", 2, 3),
    Sketcher.Constraint("Parallel", 3, 4),
    Sketcher.Constraint("Perpendicular", 4, 5),
    Sketcher.Constraint("Parallel", 5, 6),
    Sketcher.Constraint("Parallel", 6, 7),
    Sketcher.Constraint("Parallel", 7, 8),
    Sketcher.Constraint("Perpendicular", 8, 9),
    Sketcher.Constraint("Perpendicular", 9, 10),
    Sketcher.Constraint("Parallel", 10, 11),
    Sketcher.Constraint("Perpendicular", 11, 12),
    Sketcher.Constraint("Parallel", 12, 13),
    Sketcher.Constraint("Perpendicular", 13, 14),
    Sketcher.Constraint("Parallel", 14, 15),
    Sketcher.Constraint("Perpendicular", 15, 16),
    Sketcher.Constraint("Perpendicular", 16, 17),
    Sketcher.Constraint("Parallel", 17, 18),
    Sketcher.Constraint("Perpendicular", 18, 19),
    Sketcher.Constraint("Parallel", 19, 20),
    Sketcher.Constraint("Parallel", 20, 21),
    Sketcher.Constraint("Parallel", 21, 22),
    Sketcher.Constraint("Perpendicular", 22, 23),
    Sketcher.Constraint("Perpendicular", 23, 24),
    Sketcher.Constraint("Parallel", 24, 25),
    Sketcher.Constraint("Perpendicular", 25, 26),
    Sketcher.Constraint("Parallel", 26, 27),
    Sketcher.Constraint("Equal", 0, 1),
    Sketcher.Constraint("Equal", 1, 3),
    Sketcher.Constraint("Equal", 5, 6),
    Sketcher.Constraint("Equal", 4, 7),
    Sketcher.Constraint("Equal", 7, 8),
    Sketcher.Constraint("Equal", 2, 9),
    Sketcher.Constraint("Equal", 8, 10),
    Sketcher.Constraint("Equal", 6, 12),
    Sketcher.Constraint("Equal", 11, 14),
    Sketcher.Constraint("Equal", 14, 15),
    Sketcher.Constraint("Equal", 9, 16),
    Sketcher.Constraint("Equal", 15, 17),
    Sketcher.Constraint("Equal", 13, 19),
    Sketcher.Constraint("Equal", 18, 21),
    Sketcher.Constraint("Equal", 21, 22),
    Sketcher.Constraint("Equal", 16, 23),
    Sketcher.Constraint("Equal", 22, 24),
    Sketcher.Constraint("Equal", 20, 26),
    Sketcher.Constraint("Angle", 0, Q("135 deg")),
    Sketcher.Constraint("Distance", 2, Q("9 mm")),
    Sketcher.Constraint("Distance", 0, Q("2.3 mm")),
    Sketcher.Constraint("DistanceY", 7, 2, 4, 2, Q("84.838702 mm")),
    Sketcher.Constraint("DistanceY", 5, 2, 15, 2, Q("0.070698 mm")),
    Sketcher.Constraint("DistanceX", 1, 2, 15, 2, Q("96.0817 mm")),
    Sketcher.Constraint("DistanceX", 11, 2, 21, 2, Q("84.838702 mm")),
    Sketcher.Constraint("DistanceY", 24, 2, 20, 2, Q("84.838702 mm")),
    Sketcher.Constraint("DistanceY", -1, 1, 0, 2, Q("49.596491 mm")),
    Sketcher.Constraint("DistanceX", 3, 2, -1, 1, Q("30.096478 mm")),
    Sketcher.Constraint("DistanceX", 7, 2, -1, 1, Q("30.096491 mm")),
])
pocket1 = body.newObject("PartDesign::Pocket", "Pocket")
pocket1.Profile = sketch7
pocket1.Length = 7

# Sketch on an angled plane
sketch8 = body.newObject("Sketcher::SketchObject", "Sketch007")
sketch8.Placement = App.Placement(App.Vector(-31.671542, 31.671542, 0), App.Rotation(App.Vector(0, 0, -1), App.Vector(0.707106781, 0.707106781, 0), App.Vector(0.707106781, -0.707106781, 0), "ZXY"))
sketch8.addGeometry(Part.Circle(App.Vector(-22.8, 13.788591, 0), App.Vector(0, 0, 1), 1.7), False)
sketch8.addConstraint([
    Sketcher.Constraint("Diameter", 0, Q("3.4 mm")),
    Sketcher.Constraint("DistanceX", 0, 3, -1, 1, Q("22.8 mm")),
    Sketcher.Constraint("DistanceY", -1, 1, 0, 3, Q("13.788591 mm")),
])
pocket2 = body.newObject("PartDesign::Pocket", "Pocket001")
pocket2.Profile = sketch8
pocket2.Length = 16

# Sketch on XY plane
sketch9 = body.newObject("Sketcher::SketchObject", "Sketch008")
sketch9.AttachmentSupport = (doc.getObject("XY_Plane"), [""])
sketch9.MapMode = "FlatFace"
sketch9.AttachmentOffset = App.Placement(App.Vector(0, 0, 20.8), App.Rotation())
sketch9.addGeometry(Part.LineSegment(App.Vector(-8.92283, -54.420253, 0), App.Vector(-15.627773, -61.125196, 0)), False)  # 0
sketch9.addGeometry(Part.ArcOfCircle(Part.Circle(App.Vector(19.5, 0, 0), App.Vector(0, 0, 1), 70.5), math.radians(-150.114651), math.radians(-119.885364)), False)  # 1
sketch9.addGeometry(Part.LineSegment(App.Vector(-41.625205, -35.127757, 0), App.Vector(-34.920266, -28.422817, 0)), False)  # 2
sketch9.addGeometry(Part.LineSegment(App.Vector(-34.920266, -28.422817, 0), App.Vector(-8.92283, -54.420253, 0)), False)  # 3
add_polygon(sketch9, [(-31.722837, -44.858863), (-25.358876, -51.222824), (-22.106184, -47.970133), (-28.470145, -41.606172)])  # lines 4-7
sketch9.addGeometry(Part.LineSegment(App.Vector(73.920253, -28.42283, 0), App.Vector(80.625196, -35.127773, 0)), False)  # 8
sketch9.addGeometry(Part.ArcOfCircle(Part.Circle(App.Vector(19.5, 0, 0), App.Vector(0, 0, 1), 70.5), math.radians(-60.114651), math.radians(-29.885364)), False)  # 9
sketch9.addGeometry(Part.LineSegment(App.Vector(54.627757, -61.125205, 0), App.Vector(47.922817, -54.420266, 0)), False)  # 10
sketch9.addGeometry(Part.LineSegment(App.Vector(47.922817, -54.420266, 0), App.Vector(73.920253, -28.42283, 0)), False)  # 11
add_polygon(sketch9, [(64.358863, -51.222837), (70.722824, -44.858876), (67.470133, -41.606184), (61.106172, -47.970145)])  # lines 12-15
sketch9.addGeometry(Part.LineSegment(App.Vector(47.92283, 54.420253, 0), App.Vector(54.627773, 61.125196, 0)), False)  # 16
sketch9.addGeometry(Part.ArcOfCircle(Part.Circle(App.Vector(19.5, 0, 0), App.Vector(0, 0, 1), 70.5), math.radians(29.885349), math.radians(60.114636)), False)  # 17
sketch9.addGeometry(Part.LineSegment(App.Vector(80.625205, 35.127757, 0), App.Vector(73.920266, 28.422817, 0)), False)  # 18
sketch9.addGeometry(Part.LineSegment(App.Vector(73.920266, 28.422817, 0), App.Vector(47.92283, 54.420253, 0)), False)  # 19
add_polygon(sketch9, [(70.722837, 44.858863), (64.358876, 51.222824), (61.106184, 47.970133), (67.470145, 41.606172)])  # lines 20-23
sketch9.addGeometry(Part.LineSegment(App.Vector(-34.920253, 28.42283, 0), App.Vector(-41.625196, 35.127773, 0)), False)  # 24
sketch9.addGeometry(Part.ArcOfCircle(Part.Circle(App.Vector(19.5, 0, 0), App.Vector(0, 0, 1), 70.5), math.radians(119.885349), math.radians(150.114636)), False)  # 25
sketch9.addGeometry(Part.LineSegment(App.Vector(-15.627757, 61.125205, 0), App.Vector(-8.922817, 54.420266, 0)), False)  # 26
sketch9.addGeometry(Part.LineSegment(App.Vector(-8.922817, 54.420266, 0), App.Vector(-34.920253, 28.42283, 0)), False)  # 27
add_polygon(sketch9, [(-25.358863, 51.222837), (-31.722824, 44.858876), (-28.470133, 41.606184), (-22.106172, 47.970145)])  # lines 28-31
sketch9.addConstraint([
    Sketcher.Constraint("Coincident", 0, 2, 1, 2),
    Sketcher.Constraint("Coincident", 1, 1, 2, 1),
    Sketcher.Constraint("Coincident", 2, 2, 3, 1),
    Sketcher.Constraint("Coincident", 3, 2, 0, 1),
    Sketcher.Constraint("Coincident", 8, 2, 9, 2),
    Sketcher.Constraint("Coincident", 9, 1, 10, 1),
    Sketcher.Constraint("Coincident", 10, 2, 11, 1),
    Sketcher.Constraint("Coincident", 11, 2, 8, 1),
    Sketcher.Constraint("Coincident", 16, 2, 17, 2),
    Sketcher.Constraint("Coincident", 17, 1, 18, 1),
    Sketcher.Constraint("Coincident", 18, 2, 19, 1),
    Sketcher.Constraint("Coincident", 19, 2, 16, 1),
    Sketcher.Constraint("Coincident", 24, 2, 25, 2),
    Sketcher.Constraint("Coincident", 25, 1, 26, 1),
    Sketcher.Constraint("Coincident", 26, 2, 27, 1),
    Sketcher.Constraint("Coincident", 27, 2, 24, 1),
    Sketcher.Constraint("Coincident", 9, 3, 1, 3),
    Sketcher.Constraint("Coincident", 17, 3, 1, 3),
    Sketcher.Constraint("Coincident", 25, 3, 1, 3),
    Sketcher.Constraint("Equal", 1, 9),
    Sketcher.Constraint("Equal", 9, 17),
    Sketcher.Constraint("Equal", 17, 25),
    Sketcher.Constraint("PointOnObject", 1, 3, -1),
    Sketcher.Constraint("Parallel", 0, 2),
    Sketcher.Constraint("Perpendicular", 2, 3),
    Sketcher.Constraint("Parallel", 3, 4),
    Sketcher.Constraint("Perpendicular", 4, 5),
    Sketcher.Constraint("Perpendicular", 5, 6),
    Sketcher.Constraint("Perpendicular", 6, 7),
    Sketcher.Constraint("Perpendicular", 7, 8),
    Sketcher.Constraint("Parallel", 8, 10),
    Sketcher.Constraint("Perpendicular", 10, 11),
    Sketcher.Constraint("Parallel", 11, 12),
    Sketcher.Constraint("Perpendicular", 12, 13),
    Sketcher.Constraint("Perpendicular", 13, 14),
    Sketcher.Constraint("Perpendicular", 14, 15),
    Sketcher.Constraint("Perpendicular", 15, 16),
    Sketcher.Constraint("Parallel", 16, 18),
    Sketcher.Constraint("Perpendicular", 18, 19),
    Sketcher.Constraint("Parallel", 19, 20),
    Sketcher.Constraint("Perpendicular", 20, 21),
    Sketcher.Constraint("Perpendicular", 21, 22),
    Sketcher.Constraint("Perpendicular", 22, 23),
    Sketcher.Constraint("Perpendicular", 23, 24),
    Sketcher.Constraint("Parallel", 24, 26),
    Sketcher.Constraint("Perpendicular", 26, 27),
    Sketcher.Constraint("Parallel", 27, 28),
    Sketcher.Constraint("Perpendicular", 28, 29),
    Sketcher.Constraint("Perpendicular", 29, 30),
    Sketcher.Constraint("Perpendicular", 30, 31),
    Sketcher.Constraint("Equal", 0, 8),
    Sketcher.Constraint("Equal", 2, 10),
    Sketcher.Constraint("Equal", 3, 11),
    Sketcher.Constraint("Equal", 6, 12),
    Sketcher.Constraint("Equal", 7, 13),
    Sketcher.Constraint("Equal", 8, 16),
    Sketcher.Constraint("Equal", 10, 18),
    Sketcher.Constraint("Equal", 11, 19),
    Sketcher.Constraint("Equal", 14, 20),
    Sketcher.Constraint("Equal", 15, 21),
    Sketcher.Constraint("Equal", 16, 24),
    Sketcher.Constraint("Equal", 18, 26),
    Sketcher.Constraint("Equal", 19, 27),
    Sketcher.Constraint("Equal", 22, 28),
    Sketcher.Constraint("Equal", 23, 29),
    Sketcher.Constraint("Radius", 1, Q("70.5 mm")),
    Sketcher.Constraint("Angle", 0, Q("-135 deg")),
    Sketcher.Constraint("Distance", 4, Q("9 mm")),
    Sketcher.Constraint("Distance", 5, Q("4.6 mm")),
    Sketcher.Constraint("DistanceX", -1, 1, 1, 3, Q("19.5 mm")),
    Sketcher.Constraint("Distance", 0, Q("9.482221 mm")),
    Sketcher.Constraint("DistanceX", 3, 2, -1, 1, Q("8.92283 mm")),
    Sketcher.Constraint("DistanceY", 6, 2, -1, 1, Q("41.606172 mm")),
    Sketcher.Constraint("DistanceX", -1, 1, 14, 2, Q("61.106172 mm")),
    Sketcher.Constraint("DistanceY", -1, 1, 22, 2, Q("41.606172 mm")),
    Sketcher.Constraint("DistanceX", 30, 2, -1, 1, Q("22.106172 mm")),
    Sketcher.Constraint("DistanceY", 0, 2, 1, 1, Q("25.997439 mm")),
    Sketcher.Constraint("DistanceX", 1, 1, 4, 2, Q("16.26633 mm")),
    Sketcher.Constraint("DistanceY", 9, 1, 12, 2, Q("16.26633 mm")),
    Sketcher.Constraint("DistanceX", 20, 2, 17, 1, Q("16.26633 mm")),
    Sketcher.Constraint("DistanceY", 28, 2, 25, 1, Q("16.26633 mm")),
])
pad7 = body.newObject("PartDesign::Pad", "Pad006")
pad7.Profile = sketch9
pad7.Length = 1.7
pad7.Reversed = True

# Sketch on an angled plane
sketch10 = body.newObject("Sketcher::SketchObject", "Sketch009")
sketch10.Placement = App.Placement(App.Vector(-31.671542, -31.671542, 0), App.Rotation(App.Vector(0, 0, -1), App.Vector(-0.707106781, 0.707106781, 0), App.Vector(0.707106781, 0.707106781, 0), "ZXY"))
sketch10.addGeometry(Part.Circle(App.Vector(-22.8, -13.788573, 0), App.Vector(0, 0, 1), 1.7), False)
sketch10.addConstraint([
    Sketcher.Constraint("Diameter", 0, Q("3.4 mm")),
    Sketcher.Constraint("DistanceX", 0, 3, -1, 1, Q("22.8 mm")),
    Sketcher.Constraint("DistanceY", 0, 3, -1, 1, Q("13.788573 mm")),
])
pocket3 = body.newObject("PartDesign::Pocket", "Pocket002")
pocket3.Profile = sketch10
pocket3.Length = 15.361116

# Sketch on an angled plane
sketch11 = body.newObject("Sketcher::SketchObject", "Sketch010")
sketch11.Placement = App.Placement(App.Vector(51.171542, -51.171542, 0), App.Rotation(App.Vector(0, 0, 1), App.Vector(0.707106781, 0.707106781, 0), App.Vector(-0.707106781, 0.707106781, 0), "ZXY"))
sketch11.addGeometry(Part.Circle(App.Vector(22.8, 13.788573, 0), App.Vector(0, 0, 1), 1.7), False)
sketch11.addConstraint([
    Sketcher.Constraint("Diameter", 0, Q("3.4 mm")),
    Sketcher.Constraint("DistanceX", -1, 1, 0, 3, Q("22.8 mm")),
    Sketcher.Constraint("DistanceY", -1, 1, 0, 3, Q("13.788573 mm")),
])
pocket4 = body.newObject("PartDesign::Pocket", "Pocket003")
pocket4.Profile = sketch11
pocket4.Length = 15.361116

# Sketch on an angled plane
sketch12 = body.newObject("Sketcher::SketchObject", "Sketch011")
sketch12.Placement = App.Placement(App.Vector(51.171542, 51.171542, 0), App.Rotation(App.Vector(0, 0, 1), App.Vector(-0.707106781, 0.707106781, 0), App.Vector(-0.707106781, -0.707106781, 0), "ZXY"))
sketch12.addGeometry(Part.Circle(App.Vector(22.8, -13.788591, 0), App.Vector(0, 0, 1), 1.7), False)
sketch12.addConstraint([
    Sketcher.Constraint("Diameter", 0, Q("3.4 mm")),
    Sketcher.Constraint("DistanceX", -1, 1, 0, 3, Q("22.8 mm")),
    Sketcher.Constraint("DistanceY", 0, 3, -1, 1, Q("13.788591 mm")),
])
pocket5 = body.newObject("PartDesign::Pocket", "Pocket004")
pocket5.Profile = sketch12
pocket5.Length = 15.361116
doc.recompute()

fillet = body.newObject("PartDesign::Fillet", "Fillet")
fillet.Base = (pocket5, edges_at(pocket5, [(-37.422, 56.922, 27.8)]))
fillet.Radius = 2
doc.recompute()

fillet2 = body.newObject("PartDesign::Fillet", "Fillet001")
fillet2.Base = (fillet, edges_at(fillet, [(-37.422, -56.922, 27.8)]))
fillet2.Radius = 2
doc.recompute()

fillet3 = body.newObject("PartDesign::Fillet", "Fillet002")
fillet3.Base = (fillet2, edges_at(fillet2, [(76.422, -56.922, 27.8)]))
fillet3.Radius = 2
doc.recompute()

fillet4 = body.newObject("PartDesign::Fillet", "Fillet003")
fillet4.Base = (fillet3, edges_at(fillet3, [(76.422, 56.922, 27.8)]))
fillet4.Radius = 2
doc.recompute()

fillet5 = body.newObject("PartDesign::Fillet", "Fillet004")
fillet5.Base = (fillet4, edges_at(fillet4, [(-21.922, 41.422, 27.8)]))
fillet5.Radius = 2
doc.recompute()

fillet6 = body.newObject("PartDesign::Fillet", "Fillet005")
fillet6.Base = (fillet5, edges_at(fillet5, [(60.922, 41.422, 27.8)]))
fillet6.Radius = 2
doc.recompute()

fillet7 = body.newObject("PartDesign::Fillet", "Fillet006")
fillet7.Base = (fillet6, edges_at(fillet6, [(60.922, -41.422, 27.8)]))
fillet7.Radius = 2
doc.recompute()

fillet8 = body.newObject("PartDesign::Fillet", "Fillet007")
fillet8.Base = (fillet7, edges_at(fillet7, [(-21.922, -41.422, 27.8)]))
fillet8.Radius = 2

# Sketch on XY plane
sketch13 = body.newObject("Sketcher::SketchObject", "Sketch012")
sketch13.AttachmentSupport = (doc.getObject("XY_Plane"), [""])
sketch13.MapMode = "FlatFace"
sketch13.AttachmentOffset = App.Placement(App.Vector(0, 0, 27.8), App.Rotation())
sketch13.addGeometry([
    Part.Circle(App.Vector(-38.555275, -47.583609, 0), App.Vector(0, 0, 1), 3),
    Part.Circle(App.Vector(-27.410337, -58.658598, 0), App.Vector(0, 0, 1), 3),
], False)
sketch13.addConstraint([
    Sketcher.Constraint("Equal", 0, 1),
    Sketcher.Constraint("Diameter", 0, Q("6 mm")),
    Sketcher.Constraint("DistanceY", 1, 3, -1, 1, Q("58.658598 mm")),
    Sketcher.Constraint("DistanceY", 0, 3, -1, 1, Q("47.583609 mm")),
    Sketcher.Constraint("DistanceX", 0, 3, -1, 1, Q("38.555275 mm")),
    Sketcher.Constraint("DistanceX", 1, 3, -1, 1, Q("27.410337 mm")),
])
pocket6 = body.newObject("PartDesign::Pocket", "Pocket005")
pocket6.Profile = sketch13
pocket6.Length = 22.8

doc.recompute()
